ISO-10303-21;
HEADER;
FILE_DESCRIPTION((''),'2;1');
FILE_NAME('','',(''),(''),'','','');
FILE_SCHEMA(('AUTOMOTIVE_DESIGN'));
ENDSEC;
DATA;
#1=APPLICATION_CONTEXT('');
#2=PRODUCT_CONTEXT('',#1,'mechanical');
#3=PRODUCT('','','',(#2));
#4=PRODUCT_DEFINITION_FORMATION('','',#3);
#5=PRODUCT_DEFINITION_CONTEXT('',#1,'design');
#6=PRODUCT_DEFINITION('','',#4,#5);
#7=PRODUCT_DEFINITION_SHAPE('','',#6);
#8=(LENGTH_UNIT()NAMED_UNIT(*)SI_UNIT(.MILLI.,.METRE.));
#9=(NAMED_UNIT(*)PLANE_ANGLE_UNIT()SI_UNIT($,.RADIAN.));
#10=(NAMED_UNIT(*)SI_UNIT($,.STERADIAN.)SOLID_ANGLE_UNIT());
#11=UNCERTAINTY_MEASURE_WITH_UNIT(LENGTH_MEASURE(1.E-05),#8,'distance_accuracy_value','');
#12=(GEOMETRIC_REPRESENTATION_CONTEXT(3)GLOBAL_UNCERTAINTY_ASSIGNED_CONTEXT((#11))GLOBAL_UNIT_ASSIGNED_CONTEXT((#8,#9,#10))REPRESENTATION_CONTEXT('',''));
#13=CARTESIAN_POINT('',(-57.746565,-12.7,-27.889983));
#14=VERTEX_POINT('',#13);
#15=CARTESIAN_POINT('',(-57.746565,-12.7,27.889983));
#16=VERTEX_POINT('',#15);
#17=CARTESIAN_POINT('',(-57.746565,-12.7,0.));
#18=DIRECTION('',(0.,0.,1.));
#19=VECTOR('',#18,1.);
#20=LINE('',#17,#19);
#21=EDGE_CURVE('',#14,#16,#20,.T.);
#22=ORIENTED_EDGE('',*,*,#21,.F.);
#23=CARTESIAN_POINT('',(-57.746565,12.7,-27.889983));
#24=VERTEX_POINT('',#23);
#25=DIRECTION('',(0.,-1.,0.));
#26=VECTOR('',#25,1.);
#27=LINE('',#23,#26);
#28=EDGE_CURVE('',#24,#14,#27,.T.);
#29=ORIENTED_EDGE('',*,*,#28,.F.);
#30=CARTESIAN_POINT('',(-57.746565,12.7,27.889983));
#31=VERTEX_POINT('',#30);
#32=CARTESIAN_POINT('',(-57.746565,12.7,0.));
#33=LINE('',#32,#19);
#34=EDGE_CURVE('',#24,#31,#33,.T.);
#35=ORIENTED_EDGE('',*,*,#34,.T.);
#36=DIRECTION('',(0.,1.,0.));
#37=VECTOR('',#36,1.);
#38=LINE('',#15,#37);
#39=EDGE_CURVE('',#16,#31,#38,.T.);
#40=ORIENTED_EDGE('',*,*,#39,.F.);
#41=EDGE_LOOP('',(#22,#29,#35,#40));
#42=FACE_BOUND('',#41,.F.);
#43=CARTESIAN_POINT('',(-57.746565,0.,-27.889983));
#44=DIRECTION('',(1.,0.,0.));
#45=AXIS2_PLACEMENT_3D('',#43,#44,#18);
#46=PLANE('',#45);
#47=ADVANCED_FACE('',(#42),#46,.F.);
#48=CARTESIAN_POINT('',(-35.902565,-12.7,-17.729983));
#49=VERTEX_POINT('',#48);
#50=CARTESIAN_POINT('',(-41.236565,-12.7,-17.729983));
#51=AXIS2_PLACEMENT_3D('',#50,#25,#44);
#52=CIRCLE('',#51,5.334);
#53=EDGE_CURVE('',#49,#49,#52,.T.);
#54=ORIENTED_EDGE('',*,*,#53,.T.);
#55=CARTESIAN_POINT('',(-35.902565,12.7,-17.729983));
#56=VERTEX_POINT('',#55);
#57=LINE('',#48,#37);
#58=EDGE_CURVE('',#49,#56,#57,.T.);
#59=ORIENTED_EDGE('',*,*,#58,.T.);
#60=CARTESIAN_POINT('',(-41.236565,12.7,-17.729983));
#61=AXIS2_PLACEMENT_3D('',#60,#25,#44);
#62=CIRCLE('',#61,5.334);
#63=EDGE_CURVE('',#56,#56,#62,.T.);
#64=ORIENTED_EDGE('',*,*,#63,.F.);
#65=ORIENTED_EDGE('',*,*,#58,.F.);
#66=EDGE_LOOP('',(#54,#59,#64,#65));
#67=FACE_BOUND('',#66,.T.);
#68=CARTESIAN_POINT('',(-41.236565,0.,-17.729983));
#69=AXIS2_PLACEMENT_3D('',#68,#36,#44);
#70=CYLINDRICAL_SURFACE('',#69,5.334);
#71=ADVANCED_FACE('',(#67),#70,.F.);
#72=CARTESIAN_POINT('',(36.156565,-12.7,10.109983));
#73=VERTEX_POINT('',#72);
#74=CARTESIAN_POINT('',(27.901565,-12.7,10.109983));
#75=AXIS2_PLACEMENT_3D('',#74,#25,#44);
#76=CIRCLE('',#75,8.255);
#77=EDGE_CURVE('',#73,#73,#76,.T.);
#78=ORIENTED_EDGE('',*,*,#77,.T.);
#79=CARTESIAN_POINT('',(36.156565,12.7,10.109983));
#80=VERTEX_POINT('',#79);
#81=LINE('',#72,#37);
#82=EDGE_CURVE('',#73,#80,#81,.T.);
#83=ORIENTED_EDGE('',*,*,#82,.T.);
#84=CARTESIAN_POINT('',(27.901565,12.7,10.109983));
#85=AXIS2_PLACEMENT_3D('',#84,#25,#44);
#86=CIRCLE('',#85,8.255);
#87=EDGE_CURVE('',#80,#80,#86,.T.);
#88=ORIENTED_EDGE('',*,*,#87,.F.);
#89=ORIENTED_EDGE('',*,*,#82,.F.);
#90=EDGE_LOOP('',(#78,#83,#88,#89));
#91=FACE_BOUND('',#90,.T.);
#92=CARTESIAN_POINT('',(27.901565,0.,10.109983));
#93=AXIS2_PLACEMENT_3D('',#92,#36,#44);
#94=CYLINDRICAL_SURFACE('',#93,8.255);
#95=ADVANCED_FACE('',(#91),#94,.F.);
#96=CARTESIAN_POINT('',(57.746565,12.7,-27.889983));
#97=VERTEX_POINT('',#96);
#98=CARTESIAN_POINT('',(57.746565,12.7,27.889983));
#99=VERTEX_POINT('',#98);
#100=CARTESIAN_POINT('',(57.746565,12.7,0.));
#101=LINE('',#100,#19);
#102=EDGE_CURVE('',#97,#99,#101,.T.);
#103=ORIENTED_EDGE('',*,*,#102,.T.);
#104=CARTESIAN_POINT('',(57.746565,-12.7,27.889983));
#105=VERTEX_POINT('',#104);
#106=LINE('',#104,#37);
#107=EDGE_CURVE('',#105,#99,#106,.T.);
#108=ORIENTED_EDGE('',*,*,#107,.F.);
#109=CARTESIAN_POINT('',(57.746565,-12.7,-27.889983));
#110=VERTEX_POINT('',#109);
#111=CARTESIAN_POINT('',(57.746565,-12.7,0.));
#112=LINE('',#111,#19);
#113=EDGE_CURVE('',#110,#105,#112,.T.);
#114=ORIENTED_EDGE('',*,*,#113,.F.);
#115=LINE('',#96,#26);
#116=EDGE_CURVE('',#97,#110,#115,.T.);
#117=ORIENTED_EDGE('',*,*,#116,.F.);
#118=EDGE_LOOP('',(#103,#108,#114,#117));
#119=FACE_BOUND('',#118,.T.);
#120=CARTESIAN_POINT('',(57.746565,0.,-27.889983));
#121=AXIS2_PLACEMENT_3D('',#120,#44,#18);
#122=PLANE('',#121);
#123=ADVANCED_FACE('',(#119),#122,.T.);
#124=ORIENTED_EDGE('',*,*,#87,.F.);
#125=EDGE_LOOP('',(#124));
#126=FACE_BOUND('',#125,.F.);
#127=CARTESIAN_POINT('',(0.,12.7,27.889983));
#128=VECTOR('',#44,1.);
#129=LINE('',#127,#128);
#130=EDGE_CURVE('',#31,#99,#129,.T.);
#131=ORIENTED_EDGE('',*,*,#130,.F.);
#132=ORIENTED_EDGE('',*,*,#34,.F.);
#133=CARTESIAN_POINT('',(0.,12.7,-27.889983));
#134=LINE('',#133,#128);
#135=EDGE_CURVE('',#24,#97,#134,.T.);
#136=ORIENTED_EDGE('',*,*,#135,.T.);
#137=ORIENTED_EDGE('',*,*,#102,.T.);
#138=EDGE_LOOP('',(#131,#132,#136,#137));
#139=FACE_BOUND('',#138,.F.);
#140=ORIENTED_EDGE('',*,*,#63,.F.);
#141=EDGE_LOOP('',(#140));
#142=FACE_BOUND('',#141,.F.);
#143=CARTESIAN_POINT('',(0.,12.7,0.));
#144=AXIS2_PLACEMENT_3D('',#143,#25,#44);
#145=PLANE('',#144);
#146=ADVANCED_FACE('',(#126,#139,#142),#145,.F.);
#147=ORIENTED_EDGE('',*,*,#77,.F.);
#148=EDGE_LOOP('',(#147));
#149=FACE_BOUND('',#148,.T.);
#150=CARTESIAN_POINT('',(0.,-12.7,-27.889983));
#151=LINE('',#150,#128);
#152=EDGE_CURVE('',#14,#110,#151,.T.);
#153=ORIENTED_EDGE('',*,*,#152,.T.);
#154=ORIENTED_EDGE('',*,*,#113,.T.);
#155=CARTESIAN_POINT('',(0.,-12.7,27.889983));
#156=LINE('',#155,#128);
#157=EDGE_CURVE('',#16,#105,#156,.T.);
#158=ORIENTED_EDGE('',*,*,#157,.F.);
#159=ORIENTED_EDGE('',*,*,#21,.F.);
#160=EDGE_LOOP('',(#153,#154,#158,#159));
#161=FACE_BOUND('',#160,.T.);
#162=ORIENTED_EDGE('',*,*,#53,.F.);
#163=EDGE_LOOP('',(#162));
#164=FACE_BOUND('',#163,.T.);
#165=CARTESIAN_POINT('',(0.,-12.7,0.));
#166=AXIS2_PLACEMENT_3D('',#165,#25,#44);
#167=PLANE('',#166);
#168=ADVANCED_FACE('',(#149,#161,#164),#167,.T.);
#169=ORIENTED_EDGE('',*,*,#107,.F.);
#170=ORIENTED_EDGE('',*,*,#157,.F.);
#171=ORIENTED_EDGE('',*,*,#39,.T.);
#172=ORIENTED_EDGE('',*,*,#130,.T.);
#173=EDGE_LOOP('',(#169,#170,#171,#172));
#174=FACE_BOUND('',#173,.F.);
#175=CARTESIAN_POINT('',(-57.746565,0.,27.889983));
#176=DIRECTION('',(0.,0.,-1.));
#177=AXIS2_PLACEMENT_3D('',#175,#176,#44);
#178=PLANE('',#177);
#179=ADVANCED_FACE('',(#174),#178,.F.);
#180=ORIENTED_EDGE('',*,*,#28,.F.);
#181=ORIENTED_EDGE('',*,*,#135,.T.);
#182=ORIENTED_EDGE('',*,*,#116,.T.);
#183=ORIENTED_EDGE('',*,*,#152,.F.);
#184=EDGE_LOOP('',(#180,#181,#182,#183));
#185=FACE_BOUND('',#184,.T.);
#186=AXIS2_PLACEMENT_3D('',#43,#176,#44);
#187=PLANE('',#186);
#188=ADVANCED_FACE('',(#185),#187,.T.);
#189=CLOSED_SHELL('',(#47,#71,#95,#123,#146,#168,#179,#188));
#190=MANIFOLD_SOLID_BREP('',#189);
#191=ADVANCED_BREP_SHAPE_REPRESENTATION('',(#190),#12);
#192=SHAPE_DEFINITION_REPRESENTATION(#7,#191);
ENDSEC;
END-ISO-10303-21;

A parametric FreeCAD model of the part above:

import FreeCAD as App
import Part
import Sketcher
Q = App.Units.Quantity


def add_polygon(sketch, points):
    """Adds a closed chain of lines whose ends are joined by coincident constraints."""
    first, n = sketch.GeometryCount, len(points)
    for a, b in zip(points, points[1:] + points[:1]):
        sketch.addGeometry(Part.LineSegment(App.Vector(*a, 0), App.Vector(*b, 0)), False)
    for i in range(n):
        sketch.addConstraint(Sketcher.Constraint("Coincident", first + i, 2, first + (i + 1) % n, 1))

doc = App.newDocument("Part")
body = doc.addObject("PartDesign::Body", "Body")

sketch1 = body.newObject("Sketcher::SketchObject", "Sketch")
sketch1.AttachmentSupport = (doc.getObject("XZ_Plane"), [""])
sketch1.MapMode = "FlatFace"
add_polygon(sketch1, [(-58, 28), (-58, -28), (58, -28), (58, 28)])
sketch1.addGeometry(Part.Circle(App.Vector(-41, -18, 0), App.Vector(0, 0, 1), 5), False)
sketch1.addGeometry(Part.Circle(App.Vector(28, 10, 0), App.Vector(0, 0, 1), 8), False)
sketch1.addConstraint(Sketcher.Constraint("Vertical", 0))
sketch1.addConstraint(Sketcher.Constraint("Horizontal", 1))
sketch1.addConstraint(Sketcher.Constraint("Vertical", 2))
sketch1.addConstraint(Sketcher.Constraint("Horizontal", 3))
sketch1.addConstraint(Sketcher.Constraint("Symmetric", 0, 2, 2, 2, -1, 1))
sketch1.addConstraint(Sketcher.Constraint("Diameter", 4, Q("0.42 in")))
sketch1.addConstraint(Sketcher.Constraint("Diameter", 5, Q("0.65 in")))
sketch1.addConstraint(Sketcher.Constraint("DistanceY", 0, 2, 4, 3, Q("0.4 in")))
sketch1.addConstraint(Sketcher.Constraint("DistanceY", 5, 3, 2, 2, Q("0.7 in")))
sketch1.addConstraint(Sketcher.Constraint("DistanceX", 0, 2, 4, 3, Q("0.65 in")))
sketch1.addConstraint(Sketcher.Constraint("DistanceX", 5, 3, 1, 2, Q("1.175 in")))
sketch1.addConstraint(Sketcher.Constraint("DistanceX", 1, 1, 1, 2, Q("115.49313 mm")))
sketch1.addConstraint(Sketcher.Constraint("DistanceY", 0, 2, 0, 1, Q("55.779966 mm")))
pad1 = body.newObject("PartDesign::Pad", "Pad")
pad1.Profile = sketch1
pad1.Length = Q("1 in")
pad1.Midplane = True

doc.recompute()
